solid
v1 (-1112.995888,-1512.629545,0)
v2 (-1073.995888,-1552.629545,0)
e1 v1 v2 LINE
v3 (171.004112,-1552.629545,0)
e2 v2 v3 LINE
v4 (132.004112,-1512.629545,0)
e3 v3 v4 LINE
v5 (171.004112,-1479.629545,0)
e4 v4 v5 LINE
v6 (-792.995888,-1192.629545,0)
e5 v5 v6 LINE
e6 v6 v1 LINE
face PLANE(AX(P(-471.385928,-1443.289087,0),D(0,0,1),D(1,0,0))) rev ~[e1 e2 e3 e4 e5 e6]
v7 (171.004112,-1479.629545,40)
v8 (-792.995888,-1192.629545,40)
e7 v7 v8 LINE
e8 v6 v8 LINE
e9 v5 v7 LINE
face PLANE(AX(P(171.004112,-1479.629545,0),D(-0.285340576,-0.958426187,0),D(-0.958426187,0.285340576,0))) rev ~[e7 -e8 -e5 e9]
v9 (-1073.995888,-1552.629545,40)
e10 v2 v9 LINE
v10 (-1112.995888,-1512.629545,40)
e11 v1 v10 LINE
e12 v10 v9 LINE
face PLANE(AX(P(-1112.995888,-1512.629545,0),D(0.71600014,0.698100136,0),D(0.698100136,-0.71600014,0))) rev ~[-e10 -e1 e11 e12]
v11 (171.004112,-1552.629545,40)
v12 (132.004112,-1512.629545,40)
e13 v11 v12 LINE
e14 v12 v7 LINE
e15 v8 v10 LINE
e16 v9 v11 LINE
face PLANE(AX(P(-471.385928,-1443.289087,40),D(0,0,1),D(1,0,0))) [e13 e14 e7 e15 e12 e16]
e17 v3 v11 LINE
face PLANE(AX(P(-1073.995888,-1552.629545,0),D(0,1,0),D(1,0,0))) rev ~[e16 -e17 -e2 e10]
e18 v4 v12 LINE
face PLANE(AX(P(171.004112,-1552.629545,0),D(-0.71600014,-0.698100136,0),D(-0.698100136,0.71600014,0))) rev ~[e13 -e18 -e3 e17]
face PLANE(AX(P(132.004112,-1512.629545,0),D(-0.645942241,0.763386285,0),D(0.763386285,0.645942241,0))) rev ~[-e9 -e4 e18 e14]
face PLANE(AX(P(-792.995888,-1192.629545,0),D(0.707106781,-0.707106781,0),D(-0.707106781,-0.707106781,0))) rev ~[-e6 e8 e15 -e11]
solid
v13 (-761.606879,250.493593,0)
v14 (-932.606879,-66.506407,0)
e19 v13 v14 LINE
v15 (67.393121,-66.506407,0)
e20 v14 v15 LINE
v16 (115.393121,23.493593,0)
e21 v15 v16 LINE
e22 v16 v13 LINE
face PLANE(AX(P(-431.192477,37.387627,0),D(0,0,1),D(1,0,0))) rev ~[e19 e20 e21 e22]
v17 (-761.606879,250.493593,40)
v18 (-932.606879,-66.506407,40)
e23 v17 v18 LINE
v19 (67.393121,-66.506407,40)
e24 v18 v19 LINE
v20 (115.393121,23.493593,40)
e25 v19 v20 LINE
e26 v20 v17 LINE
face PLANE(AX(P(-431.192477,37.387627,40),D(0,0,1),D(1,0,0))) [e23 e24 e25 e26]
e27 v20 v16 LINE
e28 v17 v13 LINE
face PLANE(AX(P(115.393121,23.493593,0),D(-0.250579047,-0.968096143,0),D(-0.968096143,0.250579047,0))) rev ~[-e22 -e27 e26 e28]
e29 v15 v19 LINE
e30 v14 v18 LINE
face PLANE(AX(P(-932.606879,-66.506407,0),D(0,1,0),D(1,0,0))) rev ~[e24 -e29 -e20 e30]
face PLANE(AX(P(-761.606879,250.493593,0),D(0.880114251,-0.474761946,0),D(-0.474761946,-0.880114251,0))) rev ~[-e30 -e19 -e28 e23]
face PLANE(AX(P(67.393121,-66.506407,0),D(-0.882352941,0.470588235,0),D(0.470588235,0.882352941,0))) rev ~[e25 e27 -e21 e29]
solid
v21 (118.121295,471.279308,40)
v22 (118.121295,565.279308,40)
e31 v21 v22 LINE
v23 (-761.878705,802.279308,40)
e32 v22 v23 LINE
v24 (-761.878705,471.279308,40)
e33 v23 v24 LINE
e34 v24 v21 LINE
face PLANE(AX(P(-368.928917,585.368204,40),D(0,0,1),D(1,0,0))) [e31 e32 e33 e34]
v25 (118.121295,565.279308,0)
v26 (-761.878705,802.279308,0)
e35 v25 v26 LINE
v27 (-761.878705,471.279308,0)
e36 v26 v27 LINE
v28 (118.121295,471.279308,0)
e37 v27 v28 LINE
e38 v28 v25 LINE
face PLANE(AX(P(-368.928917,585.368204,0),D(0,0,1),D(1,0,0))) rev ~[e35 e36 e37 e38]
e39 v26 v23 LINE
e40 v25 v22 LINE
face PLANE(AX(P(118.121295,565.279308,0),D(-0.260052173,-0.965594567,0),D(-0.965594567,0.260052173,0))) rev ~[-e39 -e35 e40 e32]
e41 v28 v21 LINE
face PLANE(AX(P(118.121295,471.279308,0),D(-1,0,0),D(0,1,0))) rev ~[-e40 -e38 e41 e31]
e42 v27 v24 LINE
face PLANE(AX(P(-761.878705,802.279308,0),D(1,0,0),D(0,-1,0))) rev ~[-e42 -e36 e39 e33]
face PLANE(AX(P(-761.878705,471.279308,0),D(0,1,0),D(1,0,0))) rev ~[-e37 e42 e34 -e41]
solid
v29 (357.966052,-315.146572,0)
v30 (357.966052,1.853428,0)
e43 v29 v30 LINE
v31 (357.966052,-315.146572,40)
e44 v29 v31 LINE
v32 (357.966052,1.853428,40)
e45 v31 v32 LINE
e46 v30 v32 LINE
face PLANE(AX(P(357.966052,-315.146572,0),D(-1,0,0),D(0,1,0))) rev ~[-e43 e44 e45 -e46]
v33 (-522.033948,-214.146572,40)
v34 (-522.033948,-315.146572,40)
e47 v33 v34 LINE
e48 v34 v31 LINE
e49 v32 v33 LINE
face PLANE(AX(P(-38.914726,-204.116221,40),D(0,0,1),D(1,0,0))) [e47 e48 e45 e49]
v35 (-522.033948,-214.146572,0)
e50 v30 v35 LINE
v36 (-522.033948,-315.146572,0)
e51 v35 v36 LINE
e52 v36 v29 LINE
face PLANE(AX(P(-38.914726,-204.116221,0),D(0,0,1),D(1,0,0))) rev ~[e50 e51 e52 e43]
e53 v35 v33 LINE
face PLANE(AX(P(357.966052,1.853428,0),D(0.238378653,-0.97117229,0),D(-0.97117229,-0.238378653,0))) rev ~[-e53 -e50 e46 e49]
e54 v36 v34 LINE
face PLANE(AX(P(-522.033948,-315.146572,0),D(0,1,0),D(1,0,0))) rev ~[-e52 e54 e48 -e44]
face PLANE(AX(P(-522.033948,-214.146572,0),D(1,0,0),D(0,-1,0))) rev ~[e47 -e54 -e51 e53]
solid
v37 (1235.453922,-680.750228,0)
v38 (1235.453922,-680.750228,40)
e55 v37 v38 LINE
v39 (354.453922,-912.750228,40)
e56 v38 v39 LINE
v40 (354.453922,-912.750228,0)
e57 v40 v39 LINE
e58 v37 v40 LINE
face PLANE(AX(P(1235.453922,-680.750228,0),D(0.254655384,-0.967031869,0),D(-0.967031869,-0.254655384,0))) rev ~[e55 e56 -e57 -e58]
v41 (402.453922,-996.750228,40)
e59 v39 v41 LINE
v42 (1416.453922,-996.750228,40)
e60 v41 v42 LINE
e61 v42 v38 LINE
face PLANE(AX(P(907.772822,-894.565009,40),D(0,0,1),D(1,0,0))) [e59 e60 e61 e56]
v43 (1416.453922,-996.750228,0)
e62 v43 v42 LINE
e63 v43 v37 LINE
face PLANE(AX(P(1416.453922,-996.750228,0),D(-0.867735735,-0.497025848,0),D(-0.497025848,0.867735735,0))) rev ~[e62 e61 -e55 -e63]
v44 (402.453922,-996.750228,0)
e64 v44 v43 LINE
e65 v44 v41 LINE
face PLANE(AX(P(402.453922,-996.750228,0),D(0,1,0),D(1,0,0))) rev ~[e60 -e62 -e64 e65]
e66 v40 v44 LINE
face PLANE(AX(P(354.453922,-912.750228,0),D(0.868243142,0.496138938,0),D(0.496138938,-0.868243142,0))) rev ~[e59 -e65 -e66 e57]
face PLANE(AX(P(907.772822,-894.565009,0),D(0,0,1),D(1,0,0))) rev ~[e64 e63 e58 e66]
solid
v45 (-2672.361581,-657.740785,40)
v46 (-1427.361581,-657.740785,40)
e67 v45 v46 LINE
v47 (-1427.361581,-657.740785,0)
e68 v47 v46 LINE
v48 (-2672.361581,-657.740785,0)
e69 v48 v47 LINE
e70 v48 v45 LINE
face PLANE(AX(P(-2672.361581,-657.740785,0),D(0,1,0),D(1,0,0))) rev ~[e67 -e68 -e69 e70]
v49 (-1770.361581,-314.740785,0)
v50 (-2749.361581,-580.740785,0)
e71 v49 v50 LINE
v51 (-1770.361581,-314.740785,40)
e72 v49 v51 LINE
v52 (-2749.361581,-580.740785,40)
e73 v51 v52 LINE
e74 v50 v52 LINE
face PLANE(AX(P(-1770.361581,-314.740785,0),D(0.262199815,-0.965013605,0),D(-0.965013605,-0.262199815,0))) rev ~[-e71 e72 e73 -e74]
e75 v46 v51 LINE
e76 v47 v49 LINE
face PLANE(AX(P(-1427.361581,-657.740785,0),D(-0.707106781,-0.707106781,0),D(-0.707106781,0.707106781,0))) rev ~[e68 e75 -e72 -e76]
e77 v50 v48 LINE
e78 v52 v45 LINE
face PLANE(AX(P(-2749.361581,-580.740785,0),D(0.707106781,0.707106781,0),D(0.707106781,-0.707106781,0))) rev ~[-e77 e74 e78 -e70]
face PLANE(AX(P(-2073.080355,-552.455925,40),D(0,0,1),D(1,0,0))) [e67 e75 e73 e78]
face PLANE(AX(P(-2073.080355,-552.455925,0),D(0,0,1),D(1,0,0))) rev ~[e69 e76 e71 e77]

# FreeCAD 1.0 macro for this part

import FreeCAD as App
import Part
import Sketcher
Q = App.Units.Quantity


def add_polygon(sketch, points):
    """Adds a closed chain of lines whose ends are joined by coincident constraints."""
    first, n = sketch.GeometryCount, len(points)
    for a, b in zip(points, points[1:] + points[:1]):
        sketch.addGeometry(Part.LineSegment(App.Vector(*a, 0), App.Vector(*b, 0)), False)
    for i in range(n):
        sketch.addConstraint(Sketcher.Constraint("Coincident", first + i, 2, first + (i + 1) % n, 1))

doc = App.newDocument("Part")
body = doc.addObject("PartDesign::Body", "Body")

# Sketch on XY plane
sketch1 = body.newObject("Sketcher::SketchObject", "Sketch")
sketch1.AttachmentSupport = (doc.getObject("XY_Plane"), [""])
sketch1.MapMode = "FlatFace"
add_polygon(sketch1, [(358, 2), (-522, -214), (-522, -315), (358, -315)])  # lines 0-3
sketch1.addConstraint(Sketcher.Constraint("Vertical", 1))
sketch1.addConstraint(Sketcher.Constraint("Horizontal", 2))
sketch1.addConstraint(Sketcher.Constraint("Vertical", 3))
sketch1.addConstraint(Sketcher.Constraint("DistanceX", 2, 1, 2, 2, Q("880 mm")))
sketch1.addConstraint(Sketcher.Constraint("DistanceY", 1, 2, 1, 1, Q("101 mm")))
sketch1.addConstraint(Sketcher.Constraint("DistanceY", 3, 1, 3, 2, Q("317 mm")))
sketch1.addConstraint(Sketcher.Constraint("DistanceX", 0, 2, -1, 1, Q("522.033948 mm")))
sketch1.addConstraint(Sketcher.Constraint("DistanceY", 0, 2, -1, 1, Q("214.146572 mm")))
pad1 = body.newObject("PartDesign::Pad", "Pad")
pad1.Profile = sketch1
pad1.Length = 40
body2 = doc.addObject("PartDesign::Body", "Body001")

# Sketch on XY plane
sketch2 = body2.newObject("Sketcher::SketchObject", "Sketch001")
sketch2.AttachmentSupport = (doc.getObject("XY_Plane001"), [""])
sketch2.MapMode = "FlatFace"
add_polygon(sketch2, [(-762, 250), (-933, -67), (67, -67), (115, 23)])  # lines 0-3
sketch2.addConstraint(Sketcher.Constraint("Horizontal", 1))
sketch2.addConstraint(Sketcher.Constraint("DistanceX", 1, 1, 1, 2, Q("1000 mm")))
sketch2.addConstraint(Sketcher.Constraint("Distance", 2, Q("102 mm")))
sketch2.addConstraint(Sketcher.Constraint("DistanceX", 1, 2, 2, 2, Q("48 mm")))
sketch2.addConstraint(Sketcher.Constraint("DistanceX", 0, 2, 3, 2, Q("171 mm")))
sketch2.addConstraint(Sketcher.Constraint("DistanceY", 0, 2, 3, 2, Q("317 mm")))
sketch2.addConstraint(Sketcher.Constraint("DistanceX", 0, 2, -1, 1, Q("932.606879 mm")))
sketch2.addConstraint(Sketcher.Constraint("DistanceY", 0, 2, -1, 1, Q("66.506407 mm")))
pad2 = body2.newObject("PartDesign::Pad", "Pad001")
pad2.Profile = sketch2
pad2.Length = 25

# Sketch on XY plane
sketch3 = body2.newObject("Sketcher::SketchObject", "Sketch002")
sketch3.AttachmentSupport = (doc.getObject("XY_Plane001"), [""])
sketch3.MapMode = "FlatFace"
add_polygon(sketch3, [(-762, 250), (-933, -67), (67, -67), (115, 23)])  # lines 0-3
sketch3.addConstraint(Sketcher.Constraint("Horizontal", 1))
sketch3.addConstraint(Sketcher.Constraint("DistanceX", 1, 1, 1, 2, Q("1000 mm")))
sketch3.addConstraint(Sketcher.Constraint("Distance", 2, Q("102 mm")))
sketch3.addConstraint(Sketcher.Constraint("DistanceX", 1, 2, 2, 2, Q("48 mm")))
sketch3.addConstraint(Sketcher.Constraint("DistanceX", 0, 2, 3, 2, Q("171 mm")))
sketch3.addConstraint(Sketcher.Constraint("DistanceY", 0, 2, 3, 2, Q("317 mm")))
sketch3.addConstraint(Sketcher.Constraint("DistanceX", 0, 2, -1, 1, Q("932.606879 mm")))
sketch3.addConstraint(Sketcher.Constraint("DistanceY", 0, 2, -1, 1, Q("66.506407 mm")))
pad3 = body2.newObject("PartDesign::Pad", "Pad002")
pad3.Profile = sketch3
pad3.Length = 40
body3 = doc.addObject("PartDesign::Body", "Body002")

# Sketch on XY plane
sketch4 = body3.newObject("Sketcher::SketchObject", "Sketch003")
sketch4.AttachmentSupport = (doc.getObject("XY_Plane002"), [""])
sketch4.MapMode = "FlatFace"
add_polygon(sketch4, [(171, -1480), (-793, -1193), (-1113, -1513), (-1074, -1553), (171, -1553), (132, -1513)])  # lines 0-5
sketch4.addConstraint(Sketcher.Constraint("Horizontal", 3))
sketch4.addConstraint(Sketcher.Constraint("Parallel", 2, 4))
sketch4.addConstraint(Sketcher.Constraint("Horizontal", 1, 2, 4, 2))
sketch4.addConstraint(Sketcher.Constraint("Vertical", 3, 2, 5, 2))
sketch4.addConstraint(Sketcher.Constraint("DistanceX", 3, 1, 3, 2, Q("1245 mm")))
sketch4.addConstraint(Sketcher.Constraint("Angle", 1, Q("-135 deg")))
sketch4.addConstraint(Sketcher.Constraint("DistanceX", 1, 2, 0, 2, Q("320 mm")))
sketch4.addConstraint(Sketcher.Constraint("DistanceX", 1, 2, 2, 2, Q("39 mm")))
sketch4.addConstraint(Sketcher.Constraint("DistanceY", 2, 2, 1, 2, Q("40 mm")))
sketch4.addConstraint(Sketcher.Constraint("DistanceY", 4, 2, 5, 2, Q("33 mm")))
sketch4.addConstraint(Sketcher.Constraint("DistanceX", 0, 2, -1, 1, Q("792.995888 mm")))
sketch4.addConstraint(Sketcher.Constraint("DistanceY", 0, 2, -1, 1, Q("1192.629545 mm")))
pad4 = body3.newObject("PartDesign::Pad", "Pad003")
pad4.Profile = sketch4
pad4.Length = 40
body4 = doc.addObject("PartDesign::Body", "Body003")

# Sketch on XY plane
sketch5 = body4.newObject("Sketcher::SketchObject", "Sketch004")
sketch5.AttachmentSupport = (doc.getObject("XY_Plane003"), [""])
sketch5.MapMode = "FlatFace"
add_polygon(sketch5, [(-1770, -315), (-2749, -581), (-2672, -658), (-1427, -658)])  # lines 0-3
sketch5.addConstraint(Sketcher.Constraint("Horizontal", 2))
sketch5.addConstraint(Sketcher.Constraint("Parallel", 1, 3))
sketch5.addConstraint(Sketcher.Constraint("DistanceX", 2, 1, 2, 2, Q("1245 mm")))
sketch5.addConstraint(Sketcher.Constraint("Angle", 1, Q("-45 deg")))
sketch5.addConstraint(Sketcher.Constraint("DistanceX", 0, 2, 1, 2, Q("77 mm")))
sketch5.addConstraint(Sketcher.Constraint("DistanceX", 3, 2, 2, 2, Q("343 mm")))
sketch5.addConstraint(Sketcher.Constraint("DistanceX", 0, 2, -1, 1, Q("2749.361581 mm")))
sketch5.addConstraint(Sketcher.Constraint("DistanceY", 0, 2, -1, 1, Q("580.740785 mm")))
pad5 = body4.newObject("PartDesign::Pad", "Pad004")
pad5.Profile = sketch5
pad5.Length = 40
body5 = doc.addObject("PartDesign::Body", "Body004")

# Sketch on XY plane
sketch6 = body5.newObject("Sketcher::SketchObject", "Sketch005")
sketch6.AttachmentSupport = (doc.getObject("XY_Plane004"), [""])
sketch6.MapMode = "FlatFace"
add_polygon(sketch6, [(1235, -681), (354, -913), (402, -997), (1416, -997)])  # lines 0-3
sketch6.addConstraint(Sketcher.Constraint("Horizontal", 2))
sketch6.addConstraint(Sketcher.Constraint("DistanceX", 2, 1, 2, 2, Q("1014 mm")))
sketch6.addConstraint(Sketcher.Constraint("DistanceX", 0, 2, 1, 2, Q("48 mm")))
sketch6.addConstraint(Sketcher.Constraint("DistanceY", 1, 2, 0, 2, Q("84 mm")))
sketch6.addConstraint(Sketcher.Constraint("DistanceX", 3, 2, 2, 2, Q("181 mm")))
sketch6.addConstraint(Sketcher.Constraint("DistanceY", 2, 2, 3, 2, Q("316 mm")))
sketch6.addConstraint(Sketcher.Constraint("DistanceX", -1, 1, 0, 2, Q("354.453922 mm")))
sketch6.addConstraint(Sketcher.Constraint("DistanceY", 0, 2, -1, 1, Q("912.750228 mm")))
pad6 = body5.newObject("PartDesign::Pad", "Pad005")
pad6.Profile = sketch6
pad6.Length = 40
body6 = doc.addObject("PartDesign::Body", "Body005")

# Sketch on XY plane
sketch7 = body6.newObject("Sketcher::SketchObject", "Sketch006")
sketch7.AttachmentSupport = (doc.getObject("XY_Plane005"), [""])
sketch7.MapMode = "FlatFace"
add_polygon(sketch7, [(118, 565), (-762, 802), (-762, 471), (118, 471)])  # lines 0-3
sketch7.addConstraint(Sketcher.Constraint("Vertical", 1))
sketch7.addConstraint(Sketcher.Constraint("Horizontal", 2))
sketch7.addConstraint(Sketcher.Constraint("Vertical", 3))
sketch7.addConstraint(Sketcher.Constraint("DistanceX", 2, 1, 2, 2, Q("880 mm")))
sketch7.addConstraint(Sketcher.Constraint("DistanceY", 1, 2, 1, 1, Q("331 mm")))
sketch7.addConstraint(Sketcher.Constraint("DistanceY", 3, 1, 3, 2, Q("94 mm")))
sketch7.addConstraint(Sketcher.Constraint("DistanceY", -1, 1, 0, 2, Q("802.279308 mm")))
sketch7.addConstraint(Sketcher.Constraint("DistanceX", 0, 2, -1, 1, Q("761.878705 mm")))
pad7 = body6.newObject("PartDesign::Pad", "Pad006")
pad7.Profile = sketch7
pad7.Length = 40

doc.recompute()
